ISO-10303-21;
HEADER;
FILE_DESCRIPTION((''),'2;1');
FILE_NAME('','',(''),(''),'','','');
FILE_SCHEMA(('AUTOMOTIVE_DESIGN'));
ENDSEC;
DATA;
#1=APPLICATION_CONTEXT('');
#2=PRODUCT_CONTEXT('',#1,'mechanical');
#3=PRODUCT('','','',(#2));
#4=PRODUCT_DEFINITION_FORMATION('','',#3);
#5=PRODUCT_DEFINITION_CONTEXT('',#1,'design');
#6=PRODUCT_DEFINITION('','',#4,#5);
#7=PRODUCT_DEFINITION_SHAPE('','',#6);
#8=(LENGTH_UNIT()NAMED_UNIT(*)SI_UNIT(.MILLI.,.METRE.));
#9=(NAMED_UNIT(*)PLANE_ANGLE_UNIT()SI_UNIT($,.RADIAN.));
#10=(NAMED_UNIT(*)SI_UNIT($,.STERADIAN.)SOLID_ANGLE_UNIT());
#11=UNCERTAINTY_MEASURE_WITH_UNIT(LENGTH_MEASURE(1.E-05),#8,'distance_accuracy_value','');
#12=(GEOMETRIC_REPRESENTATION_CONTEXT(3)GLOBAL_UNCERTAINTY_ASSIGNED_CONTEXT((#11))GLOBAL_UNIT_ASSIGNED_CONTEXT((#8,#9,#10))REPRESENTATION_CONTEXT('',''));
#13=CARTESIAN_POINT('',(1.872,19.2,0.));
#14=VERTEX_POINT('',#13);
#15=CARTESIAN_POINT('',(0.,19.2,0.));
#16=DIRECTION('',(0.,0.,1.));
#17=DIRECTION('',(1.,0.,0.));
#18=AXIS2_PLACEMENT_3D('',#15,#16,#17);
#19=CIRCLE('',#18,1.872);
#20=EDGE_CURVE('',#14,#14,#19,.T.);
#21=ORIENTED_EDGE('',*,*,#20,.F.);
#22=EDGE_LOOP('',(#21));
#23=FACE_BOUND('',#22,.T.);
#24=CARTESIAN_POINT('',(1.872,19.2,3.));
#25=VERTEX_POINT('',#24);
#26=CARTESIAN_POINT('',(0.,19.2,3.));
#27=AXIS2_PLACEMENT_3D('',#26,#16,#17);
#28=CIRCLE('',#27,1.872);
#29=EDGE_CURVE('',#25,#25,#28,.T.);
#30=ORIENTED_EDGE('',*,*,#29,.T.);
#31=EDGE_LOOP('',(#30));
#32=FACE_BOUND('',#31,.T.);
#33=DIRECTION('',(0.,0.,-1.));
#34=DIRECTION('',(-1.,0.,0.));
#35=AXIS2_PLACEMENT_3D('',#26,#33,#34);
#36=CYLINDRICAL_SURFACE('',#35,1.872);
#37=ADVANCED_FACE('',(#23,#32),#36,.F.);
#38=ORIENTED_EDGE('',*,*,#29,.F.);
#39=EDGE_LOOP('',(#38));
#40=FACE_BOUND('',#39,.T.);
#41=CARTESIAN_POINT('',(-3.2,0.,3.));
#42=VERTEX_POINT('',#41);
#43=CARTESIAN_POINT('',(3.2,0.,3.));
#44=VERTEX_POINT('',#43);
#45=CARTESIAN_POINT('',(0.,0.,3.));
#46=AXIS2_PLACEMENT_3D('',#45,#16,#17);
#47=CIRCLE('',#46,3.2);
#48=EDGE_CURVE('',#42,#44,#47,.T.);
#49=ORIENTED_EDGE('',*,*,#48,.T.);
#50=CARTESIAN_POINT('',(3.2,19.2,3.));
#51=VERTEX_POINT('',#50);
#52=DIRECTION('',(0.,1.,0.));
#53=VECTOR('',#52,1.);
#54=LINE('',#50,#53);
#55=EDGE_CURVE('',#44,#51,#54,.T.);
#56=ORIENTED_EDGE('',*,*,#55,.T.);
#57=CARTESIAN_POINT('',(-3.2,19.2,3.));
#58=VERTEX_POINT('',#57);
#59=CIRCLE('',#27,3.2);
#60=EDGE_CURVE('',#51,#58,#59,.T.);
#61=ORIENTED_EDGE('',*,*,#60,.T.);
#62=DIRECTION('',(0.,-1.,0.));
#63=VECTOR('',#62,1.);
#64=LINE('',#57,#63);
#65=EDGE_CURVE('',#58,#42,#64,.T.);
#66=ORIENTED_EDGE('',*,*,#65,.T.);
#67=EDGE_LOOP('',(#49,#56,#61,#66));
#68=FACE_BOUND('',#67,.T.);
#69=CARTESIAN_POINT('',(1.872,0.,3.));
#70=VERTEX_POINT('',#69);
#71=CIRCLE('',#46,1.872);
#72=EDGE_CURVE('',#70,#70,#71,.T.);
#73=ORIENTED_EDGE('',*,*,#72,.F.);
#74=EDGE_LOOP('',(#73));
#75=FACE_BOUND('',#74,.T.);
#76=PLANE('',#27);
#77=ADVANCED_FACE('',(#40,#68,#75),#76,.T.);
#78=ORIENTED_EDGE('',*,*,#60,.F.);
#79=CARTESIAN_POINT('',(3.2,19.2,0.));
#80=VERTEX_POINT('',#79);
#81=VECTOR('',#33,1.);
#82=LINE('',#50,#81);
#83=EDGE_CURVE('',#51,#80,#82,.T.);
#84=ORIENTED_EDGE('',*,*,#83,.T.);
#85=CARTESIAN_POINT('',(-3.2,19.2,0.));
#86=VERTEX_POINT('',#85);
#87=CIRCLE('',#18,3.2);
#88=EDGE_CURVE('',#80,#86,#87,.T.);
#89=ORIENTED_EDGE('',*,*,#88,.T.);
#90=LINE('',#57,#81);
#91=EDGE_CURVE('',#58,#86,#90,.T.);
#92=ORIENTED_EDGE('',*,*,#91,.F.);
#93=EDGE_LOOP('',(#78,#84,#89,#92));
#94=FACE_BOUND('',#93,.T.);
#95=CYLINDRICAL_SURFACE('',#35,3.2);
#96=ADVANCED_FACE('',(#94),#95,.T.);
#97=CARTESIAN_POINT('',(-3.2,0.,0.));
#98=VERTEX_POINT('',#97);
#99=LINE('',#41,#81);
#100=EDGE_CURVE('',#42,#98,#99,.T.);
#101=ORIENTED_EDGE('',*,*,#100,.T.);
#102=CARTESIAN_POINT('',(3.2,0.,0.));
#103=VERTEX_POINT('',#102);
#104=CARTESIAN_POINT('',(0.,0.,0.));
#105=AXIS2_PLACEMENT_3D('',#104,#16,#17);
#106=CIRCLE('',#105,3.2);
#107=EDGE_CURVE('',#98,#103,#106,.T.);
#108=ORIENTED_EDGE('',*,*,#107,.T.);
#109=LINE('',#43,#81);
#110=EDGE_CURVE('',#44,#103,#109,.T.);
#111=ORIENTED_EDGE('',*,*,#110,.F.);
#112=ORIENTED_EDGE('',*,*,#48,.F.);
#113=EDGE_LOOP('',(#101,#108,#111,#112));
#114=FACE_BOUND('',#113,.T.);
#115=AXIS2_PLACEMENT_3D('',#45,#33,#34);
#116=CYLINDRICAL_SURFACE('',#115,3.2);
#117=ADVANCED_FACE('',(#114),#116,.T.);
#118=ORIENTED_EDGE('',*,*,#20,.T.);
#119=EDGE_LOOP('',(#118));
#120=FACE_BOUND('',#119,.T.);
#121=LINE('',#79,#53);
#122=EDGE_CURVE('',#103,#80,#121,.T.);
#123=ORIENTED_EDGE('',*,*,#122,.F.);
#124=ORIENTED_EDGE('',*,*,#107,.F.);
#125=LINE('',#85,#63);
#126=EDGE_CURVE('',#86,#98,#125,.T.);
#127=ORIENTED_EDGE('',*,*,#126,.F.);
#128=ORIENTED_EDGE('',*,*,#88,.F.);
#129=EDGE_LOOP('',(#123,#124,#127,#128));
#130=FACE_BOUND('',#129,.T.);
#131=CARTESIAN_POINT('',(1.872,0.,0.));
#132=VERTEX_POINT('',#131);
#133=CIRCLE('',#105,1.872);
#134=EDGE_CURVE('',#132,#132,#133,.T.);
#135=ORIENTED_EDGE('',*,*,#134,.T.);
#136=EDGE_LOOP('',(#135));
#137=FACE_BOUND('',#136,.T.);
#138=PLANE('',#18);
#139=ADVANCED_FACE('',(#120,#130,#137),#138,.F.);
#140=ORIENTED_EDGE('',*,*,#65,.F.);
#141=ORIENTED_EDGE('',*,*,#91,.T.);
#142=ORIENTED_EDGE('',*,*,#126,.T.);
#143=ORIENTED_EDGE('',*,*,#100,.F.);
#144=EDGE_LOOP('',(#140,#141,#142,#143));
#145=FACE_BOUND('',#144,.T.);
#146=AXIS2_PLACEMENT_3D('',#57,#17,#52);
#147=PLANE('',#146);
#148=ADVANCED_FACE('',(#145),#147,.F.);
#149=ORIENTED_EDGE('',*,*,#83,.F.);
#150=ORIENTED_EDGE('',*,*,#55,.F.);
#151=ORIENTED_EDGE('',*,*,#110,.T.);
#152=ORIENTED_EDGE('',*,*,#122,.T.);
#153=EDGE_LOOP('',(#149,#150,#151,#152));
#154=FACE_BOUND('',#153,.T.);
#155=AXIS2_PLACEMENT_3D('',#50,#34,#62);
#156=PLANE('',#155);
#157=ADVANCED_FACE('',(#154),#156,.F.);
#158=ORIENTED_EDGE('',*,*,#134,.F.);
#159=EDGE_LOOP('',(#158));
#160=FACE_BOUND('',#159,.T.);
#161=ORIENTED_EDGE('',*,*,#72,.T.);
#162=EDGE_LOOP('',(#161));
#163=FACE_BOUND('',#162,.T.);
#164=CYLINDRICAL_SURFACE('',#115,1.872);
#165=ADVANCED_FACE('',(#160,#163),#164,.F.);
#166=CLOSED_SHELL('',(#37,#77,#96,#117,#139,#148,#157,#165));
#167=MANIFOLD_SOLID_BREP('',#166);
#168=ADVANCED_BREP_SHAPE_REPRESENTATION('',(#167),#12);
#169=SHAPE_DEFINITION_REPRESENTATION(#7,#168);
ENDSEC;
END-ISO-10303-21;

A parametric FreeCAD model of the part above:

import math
import FreeCAD as App
import Part
import Sketcher

V = App.Vector

doc = App.newDocument("Part")
body = doc.addObject("PartDesign::Body", "Body")

# Sketch on XY plane
sketch1 = doc.addObject("Sketcher::SketchObject", "Sketch")
body.addObject(sketch1)
sketch1.AttachmentSupport = (doc.XY_Plane, [""])
sketch1.MapMode = "FlatFace"
sketch1.addGeometry([
    Part.LineSegment(V(-3.2, 19.2, 0), V(-3.2, 0, 0)),  # 0
    Part.ArcOfCircle(Part.Circle(V(0, 0, 0), V(0, 0, 1), 3.2), math.radians(180), math.radians(360)),  # 1
    Part.LineSegment(V(3.2, 0, 0), V(3.2, 19.2, 0)),  # 2
    Part.ArcOfCircle(Part.Circle(V(0, 19.2, 0), V(0, 0, 1), 3.2), math.radians(0), math.radians(180)),  # 3
    Part.Circle(V(0, 0, 0), V(0, 0, 1), 1.9),  # 4
    Part.Circle(V(0, 19.2, 0), V(0, 0, 1), 1.9),  # 5
], False)
sketch1.addConstraint([
    Sketcher.Constraint("Tangent", 0, 2, 1, 1),
    Sketcher.Constraint("Tangent", 1, 2, 2, 1),
    Sketcher.Constraint("Tangent", 2, 2, 3, 1),
    Sketcher.Constraint("Tangent", 3, 2, 0, 1),
    Sketcher.Constraint("Vertical", 0),
    Sketcher.Constraint("Vertical", 2),
    Sketcher.Constraint("Coincident", 1, 3, -1, 1),
    Sketcher.Constraint("Coincident", 4, 3, -1, 1),
    Sketcher.Constraint("Coincident", 5, 3, 3, 3),
    Sketcher.Constraint("Equal", 4, 5),
    Sketcher.Constraint("Radius", 1, 3.2),
    Sketcher.Constraint("Diameter", 4, 3.744),
    Sketcher.Constraint("DistanceY", 0, 2, 0, 1, 19.2),
])
pad1 = doc.addObject("PartDesign::Pad", "Pad")
body.addObject(pad1)
pad1.Profile = sketch1
pad1.Length = 3

doc.recompute()
